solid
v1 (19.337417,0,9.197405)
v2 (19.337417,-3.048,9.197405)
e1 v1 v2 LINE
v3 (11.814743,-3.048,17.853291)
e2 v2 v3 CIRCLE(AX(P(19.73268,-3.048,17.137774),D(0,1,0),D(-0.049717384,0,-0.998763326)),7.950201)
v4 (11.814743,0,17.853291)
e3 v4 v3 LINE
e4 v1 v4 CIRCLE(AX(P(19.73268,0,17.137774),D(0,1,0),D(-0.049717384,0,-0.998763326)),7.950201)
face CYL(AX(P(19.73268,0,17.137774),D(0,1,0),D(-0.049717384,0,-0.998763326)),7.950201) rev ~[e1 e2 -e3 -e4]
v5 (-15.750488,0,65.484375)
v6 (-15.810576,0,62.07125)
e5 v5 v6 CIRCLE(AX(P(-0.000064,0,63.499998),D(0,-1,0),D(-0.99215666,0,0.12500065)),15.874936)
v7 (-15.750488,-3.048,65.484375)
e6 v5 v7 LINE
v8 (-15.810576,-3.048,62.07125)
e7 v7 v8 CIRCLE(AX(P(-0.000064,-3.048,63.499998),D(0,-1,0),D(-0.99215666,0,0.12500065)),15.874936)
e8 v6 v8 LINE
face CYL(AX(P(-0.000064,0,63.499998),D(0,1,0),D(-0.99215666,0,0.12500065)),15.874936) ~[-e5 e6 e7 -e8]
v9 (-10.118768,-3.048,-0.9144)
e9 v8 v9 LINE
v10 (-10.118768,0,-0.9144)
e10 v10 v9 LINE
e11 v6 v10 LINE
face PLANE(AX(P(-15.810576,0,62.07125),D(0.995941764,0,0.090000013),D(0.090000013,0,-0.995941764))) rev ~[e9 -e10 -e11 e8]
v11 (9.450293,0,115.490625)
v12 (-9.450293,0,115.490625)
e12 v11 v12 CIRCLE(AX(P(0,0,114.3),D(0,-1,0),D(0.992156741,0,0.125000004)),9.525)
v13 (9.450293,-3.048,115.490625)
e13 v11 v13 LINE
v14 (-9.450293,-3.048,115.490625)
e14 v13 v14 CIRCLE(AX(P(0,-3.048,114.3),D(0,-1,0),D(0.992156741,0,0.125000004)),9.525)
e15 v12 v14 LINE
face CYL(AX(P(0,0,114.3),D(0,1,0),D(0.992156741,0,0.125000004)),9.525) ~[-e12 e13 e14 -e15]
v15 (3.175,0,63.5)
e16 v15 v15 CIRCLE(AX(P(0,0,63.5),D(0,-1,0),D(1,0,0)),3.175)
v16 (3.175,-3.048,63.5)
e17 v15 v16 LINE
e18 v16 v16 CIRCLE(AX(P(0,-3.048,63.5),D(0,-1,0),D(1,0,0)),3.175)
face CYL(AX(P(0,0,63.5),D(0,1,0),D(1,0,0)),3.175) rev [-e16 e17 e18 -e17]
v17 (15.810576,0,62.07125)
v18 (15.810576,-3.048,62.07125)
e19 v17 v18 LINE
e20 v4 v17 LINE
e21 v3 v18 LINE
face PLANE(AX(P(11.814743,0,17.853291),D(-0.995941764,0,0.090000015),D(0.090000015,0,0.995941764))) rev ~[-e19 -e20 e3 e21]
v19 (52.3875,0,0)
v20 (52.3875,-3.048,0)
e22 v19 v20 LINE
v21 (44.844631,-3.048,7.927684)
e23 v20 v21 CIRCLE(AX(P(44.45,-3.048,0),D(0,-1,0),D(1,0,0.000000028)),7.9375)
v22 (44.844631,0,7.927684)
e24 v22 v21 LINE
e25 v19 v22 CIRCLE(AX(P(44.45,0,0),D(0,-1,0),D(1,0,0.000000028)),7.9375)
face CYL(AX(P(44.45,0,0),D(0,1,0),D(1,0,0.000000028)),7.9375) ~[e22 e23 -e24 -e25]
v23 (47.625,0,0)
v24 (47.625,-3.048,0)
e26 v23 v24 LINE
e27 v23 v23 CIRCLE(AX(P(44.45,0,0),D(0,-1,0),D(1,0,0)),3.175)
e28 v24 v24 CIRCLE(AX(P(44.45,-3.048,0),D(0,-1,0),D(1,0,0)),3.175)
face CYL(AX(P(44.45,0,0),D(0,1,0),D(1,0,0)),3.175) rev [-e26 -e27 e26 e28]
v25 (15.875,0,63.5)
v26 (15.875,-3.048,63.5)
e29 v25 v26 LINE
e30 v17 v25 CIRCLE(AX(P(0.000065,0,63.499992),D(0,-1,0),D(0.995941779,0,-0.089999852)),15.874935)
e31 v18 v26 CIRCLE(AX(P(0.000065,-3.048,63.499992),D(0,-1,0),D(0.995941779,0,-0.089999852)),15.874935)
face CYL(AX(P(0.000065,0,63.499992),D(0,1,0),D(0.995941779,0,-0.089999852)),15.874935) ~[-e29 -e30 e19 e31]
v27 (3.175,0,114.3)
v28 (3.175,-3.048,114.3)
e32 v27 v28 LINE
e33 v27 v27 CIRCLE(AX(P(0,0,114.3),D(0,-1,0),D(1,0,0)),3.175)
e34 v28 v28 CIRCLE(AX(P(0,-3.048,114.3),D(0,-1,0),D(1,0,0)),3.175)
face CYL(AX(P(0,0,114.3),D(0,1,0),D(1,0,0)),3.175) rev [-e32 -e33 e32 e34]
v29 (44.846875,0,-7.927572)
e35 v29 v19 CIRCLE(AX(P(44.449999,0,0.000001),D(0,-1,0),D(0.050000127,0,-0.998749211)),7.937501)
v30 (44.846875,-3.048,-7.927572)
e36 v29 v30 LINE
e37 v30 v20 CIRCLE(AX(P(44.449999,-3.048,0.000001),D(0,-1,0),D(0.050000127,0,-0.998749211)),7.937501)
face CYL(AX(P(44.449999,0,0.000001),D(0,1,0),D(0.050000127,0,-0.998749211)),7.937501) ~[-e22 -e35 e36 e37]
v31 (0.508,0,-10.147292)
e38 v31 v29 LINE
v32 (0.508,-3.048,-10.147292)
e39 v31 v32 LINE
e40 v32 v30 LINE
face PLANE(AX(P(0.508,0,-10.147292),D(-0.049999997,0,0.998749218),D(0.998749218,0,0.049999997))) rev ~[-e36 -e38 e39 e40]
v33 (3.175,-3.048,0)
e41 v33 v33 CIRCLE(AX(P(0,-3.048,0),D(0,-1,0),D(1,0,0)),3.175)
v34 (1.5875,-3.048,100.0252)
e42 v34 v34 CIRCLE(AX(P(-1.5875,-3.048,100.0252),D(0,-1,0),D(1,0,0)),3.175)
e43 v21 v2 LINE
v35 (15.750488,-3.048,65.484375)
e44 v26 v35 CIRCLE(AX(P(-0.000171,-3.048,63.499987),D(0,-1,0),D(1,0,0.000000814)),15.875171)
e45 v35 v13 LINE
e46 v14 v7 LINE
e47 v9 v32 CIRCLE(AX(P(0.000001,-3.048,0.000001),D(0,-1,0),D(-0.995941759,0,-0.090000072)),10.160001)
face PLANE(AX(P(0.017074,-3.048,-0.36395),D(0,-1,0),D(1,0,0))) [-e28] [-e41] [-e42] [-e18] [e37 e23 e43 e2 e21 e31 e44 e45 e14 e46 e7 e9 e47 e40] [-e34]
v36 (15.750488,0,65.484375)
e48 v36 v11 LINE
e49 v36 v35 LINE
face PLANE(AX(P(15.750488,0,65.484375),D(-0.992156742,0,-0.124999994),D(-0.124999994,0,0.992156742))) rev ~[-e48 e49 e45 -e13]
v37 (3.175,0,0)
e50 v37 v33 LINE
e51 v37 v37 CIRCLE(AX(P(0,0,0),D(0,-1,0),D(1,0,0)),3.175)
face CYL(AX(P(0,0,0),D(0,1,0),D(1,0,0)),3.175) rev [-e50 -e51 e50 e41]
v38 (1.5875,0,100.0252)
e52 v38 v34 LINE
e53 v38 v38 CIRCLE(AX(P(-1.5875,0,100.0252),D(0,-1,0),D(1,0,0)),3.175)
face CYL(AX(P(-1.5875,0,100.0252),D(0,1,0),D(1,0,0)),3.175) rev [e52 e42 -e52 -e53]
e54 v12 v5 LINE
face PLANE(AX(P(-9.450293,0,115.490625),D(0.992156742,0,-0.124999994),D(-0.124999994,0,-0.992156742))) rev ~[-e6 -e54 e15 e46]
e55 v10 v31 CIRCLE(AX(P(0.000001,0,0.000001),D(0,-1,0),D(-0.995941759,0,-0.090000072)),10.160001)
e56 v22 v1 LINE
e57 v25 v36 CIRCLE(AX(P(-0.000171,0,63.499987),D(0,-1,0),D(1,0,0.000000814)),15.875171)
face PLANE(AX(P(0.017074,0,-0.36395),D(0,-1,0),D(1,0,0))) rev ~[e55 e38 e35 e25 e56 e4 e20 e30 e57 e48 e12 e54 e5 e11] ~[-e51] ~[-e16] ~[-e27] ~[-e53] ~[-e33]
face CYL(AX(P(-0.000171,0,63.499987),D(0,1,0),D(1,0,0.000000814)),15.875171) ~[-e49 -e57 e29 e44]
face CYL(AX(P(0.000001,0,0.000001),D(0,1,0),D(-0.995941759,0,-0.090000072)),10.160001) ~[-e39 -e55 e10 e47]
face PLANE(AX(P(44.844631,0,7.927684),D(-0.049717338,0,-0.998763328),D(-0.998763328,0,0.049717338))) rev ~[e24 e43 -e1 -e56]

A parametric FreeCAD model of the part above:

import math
import FreeCAD as App
import Part
import Sketcher
Q = App.Units.Quantity

doc = App.newDocument("Part")
params = doc.addObject("Spreadsheet::Sheet", "Params")
for row, (alias, value) in enumerate([
    ("sketch1_radius", "0.4 in"),
    ("sketch1_diameter", "0.25 in"),
    ("sketch1_diameter2", "0.25 in"),
    ("sketch1_diameter3", "0.25 in"),
    ("sketch1_diameter4", "0.25 in"),
    ("pad1_length", "0.12 in"),
], start=1):
    params.set(f"A{row}", alias)
    params.set(f"B{row}", "=" + value)
    params.setAlias(f"B{row}", alias)

body = doc.addObject("PartDesign::Body", "Body")

# Sketch on XZ plane
sketch1 = body.newObject("Sketcher::SketchObject", "Sketch")
sketch1.AttachmentSupport = (doc.getObject("XZ_Plane"), [""])
sketch1.MapMode = "FlatFace"
sketch1.addGeometry([
    Part.ArcOfCircle(Part.Circle(App.Vector(0.000001, 0.000001, 0), App.Vector(0, 0, 1), 10.160001), math.radians(-174.836389), math.radians(-87.134022)),  # 0
    Part.LineSegment(App.Vector(0.508, -10.147292, 0), App.Vector(44.846875, -7.927572, 0)),  # 1
    Part.ArcOfCircle(Part.Circle(App.Vector(44.449999, 0.000001, 0), App.Vector(0, 0, 1), 7.937501), math.radians(-87.134009), math.radians(-0.000007)),  # 2
    Part.ArcOfCircle(Part.Circle(App.Vector(44.45, 0, 0), App.Vector(0, 0, 1), 7.9375), math.radians(0.000002), math.radians(87.150232)),  # 3
    Part.LineSegment(App.Vector(44.844631, 7.927684, 0), App.Vector(19.337417, 9.197405, 0)),  # 4
    Part.ArcOfCircle(Part.Circle(App.Vector(19.73268, 17.137774, 0), App.Vector(0, 0, 1), 7.950201), math.radians(174.836401), math.radians(267.150229)),  # 5
    Part.LineSegment(App.Vector(11.814743, 17.853291, 0), App.Vector(15.810576, 62.07125, 0)),  # 6
    Part.ArcOfCircle(Part.Circle(App.Vector(0.000065, 63.499992, 0), App.Vector(0, 0, 1), 15.874935), math.radians(-5.163599), math.radians(0.000029)),  # 7
    Part.ArcOfCircle(Part.Circle(App.Vector(-0.000171, 63.499987, 0), App.Vector(0, 0, 1), 15.875171), math.radians(0.000047), math.radians(7.180725)),  # 8
    Part.LineSegment(App.Vector(15.750488, 65.484375, 0), App.Vector(9.450293, 115.490625, 0)),  # 9
    Part.ArcOfCircle(Part.Circle(App.Vector(0, 114.3, 0), App.Vector(0, 0, 1), 9.525), math.radians(7.180756), math.radians(172.819244)),  # 10
    Part.LineSegment(App.Vector(-9.450293, 115.490625, 0), App.Vector(-15.750488, 65.484375, 0)),  # 11
    Part.ArcOfCircle(Part.Circle(App.Vector(-0.000064, 63.499998, 0), App.Vector(0, 0, 1), 15.874936), math.radians(172.819207), math.radians(185.163619)),  # 12
    Part.LineSegment(App.Vector(-15.810576, 62.07125, 0), App.Vector(-10.118768, -0.9144, 0)),  # 13
    Part.Circle(App.Vector(0, 0, 0), App.Vector(0, 0, 1), 3.175),  # 14
    Part.Circle(App.Vector(44.45, 0, 0), App.Vector(0, 0, 1), 3.175),  # 15
    Part.Circle(App.Vector(0, 63.5, 0), App.Vector(0, 0, 1), 3.175),  # 16
    Part.Circle(App.Vector(-1.5875, 100.0252, 0), App.Vector(0, 0, 1), 3.175),  # 17
    Part.Circle(App.Vector(0, 114.3, 0), App.Vector(0, 0, 1), 3.175),  # 18
], False)
sketch1.addConstraint([
    Sketcher.Constraint("Coincident", 0, 2, 1, 1),
    Sketcher.Constraint("Coincident", 1, 2, 2, 1),
    Sketcher.Constraint("Coincident", 2, 2, 3, 1),
    Sketcher.Constraint("Coincident", 3, 2, 4, 1),
    Sketcher.Constraint("Coincident", 4, 2, 5, 2),
    Sketcher.Constraint("Coincident", 5, 1, 6, 1),
    Sketcher.Constraint("Coincident", 6, 2, 7, 1),
    Sketcher.Constraint("Coincident", 7, 2, 8, 1),
    Sketcher.Constraint("Coincident", 8, 2, 9, 1),
    Sketcher.Constraint("Coincident", 9, 2, 10, 1),
    Sketcher.Constraint("Coincident", 10, 2, 11, 1),
    Sketcher.Constraint("Coincident", 11, 2, 12, 1),
    Sketcher.Constraint("Coincident", 12, 2, 13, 1),
    Sketcher.Constraint("Coincident", 13, 2, 0, 1),
    Sketcher.Constraint("Coincident", 0, 3, -1, 1),
    Sketcher.Constraint("Coincident", 14, 3, -1, 1),
    Sketcher.Constraint("Coincident", 3, 3, 2, 3),
    Sketcher.Constraint("Coincident", 15, 3, 2, 3),
    Sketcher.Constraint("Coincident", 18, 3, 10, 3),
    Sketcher.Constraint("PointOnObject", 2, 3, -1),
    Sketcher.Constraint("PointOnObject", 10, 3, -2),
    Sketcher.Constraint("PointOnObject", 16, 3, -2),
    Sketcher.Constraint("PointOnObject", 2, 2, -1),
    Sketcher.Constraint("Radius", 0, Q("0.4 in")),
    Sketcher.Constraint("Diameter", 14, Q("0.25 in")),
    Sketcher.Constraint("Diameter", 15, Q("0.25 in")),
    Sketcher.Constraint("Diameter", 16, Q("0.25 in")),
    Sketcher.Constraint("Diameter", 17, Q("0.25 in")),
    Sketcher.Constraint("Diameter", 18, Q("0.25 in")),
    Sketcher.Constraint("Radius", 2, Q("0.3125 in")),
    Sketcher.Constraint("Radius", 5, Q("0.313 in")),
    Sketcher.Constraint("Radius", 10, Q("0.375 in")),
    Sketcher.Constraint("DistanceY", 12, 3, 10, 3, Q("2.0000001 in")),
    Sketcher.Constraint("DistanceY", 16, 3, 10, 3, Q("2 in")),
    Sketcher.Constraint("DistanceY", -1, 1, 10, 3, Q("4.5 in")),
    Sketcher.Constraint("DistanceY", -1, 1, 7, 2, Q("2.5 in")),
    Sketcher.Constraint("DistanceX", -1, 1, 2, 3, Q("1.75 in")),
    Sketcher.Constraint("DistanceX", -1, 1, 0, 2, Q("0.02 in")),
    Sketcher.Constraint("DistanceX", 17, 3, -1, 1, Q("0.0625 in")),
    Sketcher.Constraint("DistanceY", -1, 1, 17, 3, Q("3.938 in")),
    Sketcher.Constraint("DistanceX", -1, 1, 1, 2, Q("1.765625 in")),
    Sketcher.Constraint("DistanceX", -1, 1, 7, 2, Q("0.625 in")),
    Sketcher.Constraint("DistanceY", -1, 1, 8, 2, Q("2.578125 in")),
    Sketcher.Constraint("DistanceY", -1, 1, 9, 2, Q("4.546875 in")),
    Sketcher.Constraint("DistanceY", -1, 1, 10, 2, Q("4.546875 in")),
    Sketcher.Constraint("DistanceY", -1, 1, 11, 2, Q("2.578125 in")),
    Sketcher.Constraint("DistanceY", 13, 2, -1, 1, Q("0.036 in")),
    Sketcher.Constraint("Radius", 8, Q("15.875171 mm")),
    Sketcher.Constraint("Radius", 7, Q("15.874935 mm")),
    Sketcher.Constraint("Radius", 12, Q("15.874936 mm")),
    Sketcher.Constraint("DistanceX", -1, 1, 5, 3, Q("19.73268 mm")),
    Sketcher.Constraint("DistanceY", -1, 1, 7, 3, Q("63.499992 mm")),
    Sketcher.Constraint("DistanceX", -1, 1, 3, 2, Q("44.844631 mm")),
    Sketcher.Constraint("DistanceY", -1, 1, 5, 1, Q("17.853291 mm")),
    Sketcher.Constraint("DistanceY", -1, 1, 6, 2, Q("62.07125 mm")),
    Sketcher.Constraint("DistanceX", -1, 1, 8, 2, Q("15.750488 mm")),
    Sketcher.Constraint("DistanceX", 11, 2, -1, 1, Q("15.750488 mm")),
    Sketcher.Constraint("DistanceY", -1, 1, 12, 2, Q("62.07125 mm")),
    Sketcher.Constraint("DistanceY", 4, 2, 5, 3, Q("7.940369 mm")),
    Sketcher.Constraint("DistanceY", 3, 2, 4, 2, Q("1.269721 mm")),
])
sketch1.setExpression("Constraints[23]", "Params.sketch1_radius")
sketch1.setExpression("Constraints[24]", "Params.sketch1_diameter")
sketch1.setExpression("Constraints[25]", "Params.sketch1_diameter2")
sketch1.setExpression("Constraints[26]", "Params.sketch1_diameter3")
sketch1.setExpression("Constraints[27]", "Params.sketch1_diameter4")
pad1 = body.newObject("PartDesign::Pad", "Pad")
pad1.Profile = sketch1
pad1.setExpression("Length", "Params.pad1_length")

doc.recompute()
